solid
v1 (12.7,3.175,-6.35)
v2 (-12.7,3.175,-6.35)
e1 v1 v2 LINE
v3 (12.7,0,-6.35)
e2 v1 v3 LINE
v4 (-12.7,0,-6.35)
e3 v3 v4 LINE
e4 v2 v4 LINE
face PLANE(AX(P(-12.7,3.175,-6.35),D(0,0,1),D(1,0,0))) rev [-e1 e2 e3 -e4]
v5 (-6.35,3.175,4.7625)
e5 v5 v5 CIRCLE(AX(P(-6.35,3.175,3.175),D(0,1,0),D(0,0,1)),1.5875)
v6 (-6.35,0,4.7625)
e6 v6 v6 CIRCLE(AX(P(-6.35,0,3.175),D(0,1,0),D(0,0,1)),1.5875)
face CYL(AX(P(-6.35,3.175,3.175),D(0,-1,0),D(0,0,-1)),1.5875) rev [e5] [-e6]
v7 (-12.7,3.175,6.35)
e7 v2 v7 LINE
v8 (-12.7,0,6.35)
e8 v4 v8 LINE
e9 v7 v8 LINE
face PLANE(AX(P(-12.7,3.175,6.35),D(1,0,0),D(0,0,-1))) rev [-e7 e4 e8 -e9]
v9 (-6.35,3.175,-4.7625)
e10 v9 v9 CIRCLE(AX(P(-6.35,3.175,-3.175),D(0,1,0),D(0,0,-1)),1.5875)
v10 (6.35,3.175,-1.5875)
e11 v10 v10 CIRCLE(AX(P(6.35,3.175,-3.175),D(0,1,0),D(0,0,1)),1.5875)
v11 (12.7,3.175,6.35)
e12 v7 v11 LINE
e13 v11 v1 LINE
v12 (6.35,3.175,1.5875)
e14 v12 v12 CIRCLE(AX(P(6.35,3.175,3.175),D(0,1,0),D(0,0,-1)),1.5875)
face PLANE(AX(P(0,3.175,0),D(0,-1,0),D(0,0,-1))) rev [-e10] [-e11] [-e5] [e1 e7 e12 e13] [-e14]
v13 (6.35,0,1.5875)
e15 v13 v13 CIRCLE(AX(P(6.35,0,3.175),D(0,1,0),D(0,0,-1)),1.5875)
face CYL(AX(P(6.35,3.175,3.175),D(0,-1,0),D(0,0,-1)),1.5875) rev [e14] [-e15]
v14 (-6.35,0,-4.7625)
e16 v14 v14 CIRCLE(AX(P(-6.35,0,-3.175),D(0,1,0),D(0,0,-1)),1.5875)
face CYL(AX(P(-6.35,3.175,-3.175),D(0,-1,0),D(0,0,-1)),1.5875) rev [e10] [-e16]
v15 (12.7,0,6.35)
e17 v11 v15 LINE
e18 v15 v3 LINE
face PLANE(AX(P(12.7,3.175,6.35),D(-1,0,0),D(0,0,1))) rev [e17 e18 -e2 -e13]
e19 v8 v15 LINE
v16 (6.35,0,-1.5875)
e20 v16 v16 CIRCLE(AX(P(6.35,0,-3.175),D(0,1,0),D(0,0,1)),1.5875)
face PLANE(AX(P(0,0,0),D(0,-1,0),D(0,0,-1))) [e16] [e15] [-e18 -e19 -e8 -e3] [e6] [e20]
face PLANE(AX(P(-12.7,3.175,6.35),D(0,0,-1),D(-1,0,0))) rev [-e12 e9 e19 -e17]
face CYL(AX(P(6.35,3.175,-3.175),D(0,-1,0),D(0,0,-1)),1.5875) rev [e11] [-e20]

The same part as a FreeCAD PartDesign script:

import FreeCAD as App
import Part
import Sketcher
Q = App.Units.Quantity

doc = App.newDocument("Part")
body = doc.addObject("PartDesign::Body", "Body")

sketch1 = body.newObject("Sketcher::SketchObject", "Sketch")
sketch1.AttachmentSupport = (doc.getObject("XZ_Plane"), [""])
sketch1.MapMode = "FlatFace"
sketch1.addGeometry(Part.LineSegment(App.Vector(-12.7, -6.3, 0), App.Vector(-12.7, 6.3, 0)), False)
sketch1.addGeometry(Part.LineSegment(App.Vector(-12.7, 6.3, 0), App.Vector(12.7, 6.3, 0)), False)
sketch1.addGeometry(Part.LineSegment(App.Vector(12.7, 6.3, 0), App.Vector(12.7, -6.3, 0)), False)
sketch1.addGeometry(Part.LineSegment(App.Vector(12.7, -6.3, 0), App.Vector(-12.7, -6.3, 0)), False)
sketch1.addGeometry(Part.Circle(App.Vector(-6.3, 3.2, 0), App.Vector(0, 0, 1), 1.6), False)
sketch1.addGeometry(Part.Circle(App.Vector(6.3, 3.2, 0), App.Vector(0, 0, 1), 1.6), False)
sketch1.addGeometry(Part.Circle(App.Vector(-6.3, -3.2, 0), App.Vector(0, 0, 1), 1.6), False)
sketch1.addGeometry(Part.Circle(App.Vector(6.3, -3.2, 0), App.Vector(0, 0, 1), 1.6), False)
sketch1.addConstraint(Sketcher.Constraint("Coincident", 0, 2, 1, 1))
sketch1.addConstraint(Sketcher.Constraint("Coincident", 1, 2, 2, 1))
sketch1.addConstraint(Sketcher.Constraint("Coincident", 2, 2, 3, 1))
sketch1.addConstraint(Sketcher.Constraint("Coincident", 3, 2, 0, 1))
sketch1.addConstraint(Sketcher.Constraint("Vertical", 0))
sketch1.addConstraint(Sketcher.Constraint("Horizontal", 1))
sketch1.addConstraint(Sketcher.Constraint("Vertical", 2))
sketch1.addConstraint(Sketcher.Constraint("Horizontal", 3))
sketch1.addConstraint(Sketcher.Constraint("Equal", 4, 5))
sketch1.addConstraint(Sketcher.Constraint("Equal", 5, 6))
sketch1.addConstraint(Sketcher.Constraint("Equal", 6, 7))
sketch1.addConstraint(Sketcher.Constraint("Symmetric", 5, 3, 6, 3, -1, 1))
sketch1.addConstraint(Sketcher.Constraint("Symmetric", 4, 3, 7, 3, -1, 1))
sketch1.addConstraint(Sketcher.Constraint("Symmetric", 0, 2, 2, 2, -1, 1))
sketch1.addConstraint(Sketcher.Constraint("Symmetric", 4, 3, 5, 3, -2))
sketch1.addConstraint(Sketcher.Constraint("DistanceX", 1, 1, 1, 2, Q("1 in")))
sketch1.addConstraint(Sketcher.Constraint("Diameter", 4, Q("0.125 in")))
sketch1.addConstraint(Sketcher.Constraint("DistanceY", 0, 1, 0, 2, Q("0.5 in")))
sketch1.addConstraint(Sketcher.Constraint("DistanceX", 4, 3, 5, 3, Q("0.5 in")))
sketch1.addConstraint(Sketcher.Constraint("DistanceY", 6, 3, 4, 3, Q("0.25 in")))
pad1 = body.newObject("PartDesign::Pad", "Pad")
pad1.Profile = sketch1
pad1.Length = Q("0.125 in")
pad1.Reversed = True

doc.recompute()
